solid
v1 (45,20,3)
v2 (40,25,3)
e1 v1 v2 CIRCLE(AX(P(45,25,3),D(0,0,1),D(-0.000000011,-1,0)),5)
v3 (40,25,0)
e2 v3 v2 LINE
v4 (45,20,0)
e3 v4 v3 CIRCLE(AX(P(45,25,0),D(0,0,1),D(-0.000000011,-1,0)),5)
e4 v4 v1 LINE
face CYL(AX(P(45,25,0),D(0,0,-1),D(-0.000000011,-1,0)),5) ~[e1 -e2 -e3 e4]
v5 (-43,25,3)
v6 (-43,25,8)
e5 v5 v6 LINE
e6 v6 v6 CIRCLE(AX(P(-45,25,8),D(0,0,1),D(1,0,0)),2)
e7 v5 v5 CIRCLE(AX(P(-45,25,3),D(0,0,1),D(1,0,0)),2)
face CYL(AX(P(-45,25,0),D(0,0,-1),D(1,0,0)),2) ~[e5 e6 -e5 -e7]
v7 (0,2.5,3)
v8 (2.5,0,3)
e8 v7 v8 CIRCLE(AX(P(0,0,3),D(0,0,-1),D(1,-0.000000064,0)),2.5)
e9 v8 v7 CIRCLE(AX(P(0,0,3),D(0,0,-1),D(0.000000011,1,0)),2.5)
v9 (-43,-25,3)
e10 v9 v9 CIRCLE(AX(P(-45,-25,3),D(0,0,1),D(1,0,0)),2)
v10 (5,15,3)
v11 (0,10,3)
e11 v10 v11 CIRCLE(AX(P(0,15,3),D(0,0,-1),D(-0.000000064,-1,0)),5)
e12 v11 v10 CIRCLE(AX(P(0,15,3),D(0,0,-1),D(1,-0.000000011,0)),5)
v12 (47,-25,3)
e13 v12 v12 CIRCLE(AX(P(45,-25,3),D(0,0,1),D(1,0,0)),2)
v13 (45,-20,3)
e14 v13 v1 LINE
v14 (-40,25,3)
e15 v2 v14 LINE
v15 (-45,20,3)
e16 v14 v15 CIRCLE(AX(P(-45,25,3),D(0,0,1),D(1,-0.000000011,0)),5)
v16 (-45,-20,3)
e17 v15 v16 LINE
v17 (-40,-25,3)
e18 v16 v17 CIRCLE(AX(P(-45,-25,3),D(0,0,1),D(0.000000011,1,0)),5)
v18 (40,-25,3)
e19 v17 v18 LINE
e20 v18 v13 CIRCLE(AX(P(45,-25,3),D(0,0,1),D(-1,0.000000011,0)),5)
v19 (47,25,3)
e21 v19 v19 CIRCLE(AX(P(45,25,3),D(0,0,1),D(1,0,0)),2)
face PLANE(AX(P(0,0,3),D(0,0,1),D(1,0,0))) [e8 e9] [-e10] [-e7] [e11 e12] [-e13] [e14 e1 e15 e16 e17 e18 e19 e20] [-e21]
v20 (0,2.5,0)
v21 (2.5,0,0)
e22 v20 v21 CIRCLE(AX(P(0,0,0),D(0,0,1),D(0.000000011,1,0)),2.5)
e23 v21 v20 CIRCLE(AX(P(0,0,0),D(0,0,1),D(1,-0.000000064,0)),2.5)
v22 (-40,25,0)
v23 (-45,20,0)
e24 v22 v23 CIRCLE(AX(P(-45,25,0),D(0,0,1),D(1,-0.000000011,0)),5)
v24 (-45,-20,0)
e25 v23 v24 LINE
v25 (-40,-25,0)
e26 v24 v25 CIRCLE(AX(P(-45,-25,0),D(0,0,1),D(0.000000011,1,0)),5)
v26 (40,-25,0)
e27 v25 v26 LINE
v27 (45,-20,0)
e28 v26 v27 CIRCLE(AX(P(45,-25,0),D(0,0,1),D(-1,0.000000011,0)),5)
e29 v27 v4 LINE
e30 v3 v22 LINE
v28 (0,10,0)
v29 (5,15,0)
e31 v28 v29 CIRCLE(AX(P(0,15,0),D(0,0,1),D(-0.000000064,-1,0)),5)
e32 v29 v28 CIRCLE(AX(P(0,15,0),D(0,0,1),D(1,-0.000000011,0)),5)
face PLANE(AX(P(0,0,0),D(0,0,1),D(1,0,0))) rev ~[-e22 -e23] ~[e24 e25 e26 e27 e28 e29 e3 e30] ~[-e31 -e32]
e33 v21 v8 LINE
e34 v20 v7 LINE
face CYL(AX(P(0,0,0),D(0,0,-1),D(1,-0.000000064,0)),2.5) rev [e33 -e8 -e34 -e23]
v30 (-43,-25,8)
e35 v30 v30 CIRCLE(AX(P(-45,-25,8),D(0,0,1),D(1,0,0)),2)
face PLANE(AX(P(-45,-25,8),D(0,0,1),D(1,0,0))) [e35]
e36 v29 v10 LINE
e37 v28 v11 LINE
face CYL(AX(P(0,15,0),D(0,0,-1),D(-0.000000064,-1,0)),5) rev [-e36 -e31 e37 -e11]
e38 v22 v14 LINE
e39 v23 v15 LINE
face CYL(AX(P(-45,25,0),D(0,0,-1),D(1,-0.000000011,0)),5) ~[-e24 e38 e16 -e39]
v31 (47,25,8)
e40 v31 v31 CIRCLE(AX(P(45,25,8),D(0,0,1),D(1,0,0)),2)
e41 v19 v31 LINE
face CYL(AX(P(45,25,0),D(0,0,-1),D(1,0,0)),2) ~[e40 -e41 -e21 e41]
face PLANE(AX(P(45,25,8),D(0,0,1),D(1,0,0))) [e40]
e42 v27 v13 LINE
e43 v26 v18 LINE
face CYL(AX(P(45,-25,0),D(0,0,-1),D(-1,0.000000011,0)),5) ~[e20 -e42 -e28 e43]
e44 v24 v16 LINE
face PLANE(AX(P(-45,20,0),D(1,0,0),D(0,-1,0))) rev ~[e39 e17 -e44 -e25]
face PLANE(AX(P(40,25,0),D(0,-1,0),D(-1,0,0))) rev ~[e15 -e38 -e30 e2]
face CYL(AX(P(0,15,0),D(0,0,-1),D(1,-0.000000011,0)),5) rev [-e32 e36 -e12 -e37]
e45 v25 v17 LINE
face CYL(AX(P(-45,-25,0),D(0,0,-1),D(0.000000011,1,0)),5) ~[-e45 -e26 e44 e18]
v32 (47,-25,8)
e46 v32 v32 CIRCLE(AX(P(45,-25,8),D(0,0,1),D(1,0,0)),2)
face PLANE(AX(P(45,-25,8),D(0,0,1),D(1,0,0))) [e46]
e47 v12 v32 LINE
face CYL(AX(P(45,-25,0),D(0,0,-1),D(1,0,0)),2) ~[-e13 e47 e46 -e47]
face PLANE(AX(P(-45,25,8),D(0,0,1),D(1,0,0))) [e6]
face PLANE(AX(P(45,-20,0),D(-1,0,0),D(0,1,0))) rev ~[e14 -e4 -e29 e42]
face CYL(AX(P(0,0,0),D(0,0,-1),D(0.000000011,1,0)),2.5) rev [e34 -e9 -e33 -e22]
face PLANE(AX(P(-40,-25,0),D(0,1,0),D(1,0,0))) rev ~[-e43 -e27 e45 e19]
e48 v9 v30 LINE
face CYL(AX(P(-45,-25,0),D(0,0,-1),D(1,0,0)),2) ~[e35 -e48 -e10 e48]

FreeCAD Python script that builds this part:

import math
import FreeCAD as App
import Part
import Sketcher

V = App.Vector

doc = App.newDocument("Part")
params = doc.addObject("Spreadsheet::Sheet", "Params")
for row, (alias, value) in enumerate([
    ("sketch1_diameter", "4 mm"),
    ("sketch1_radius", "5 mm"),
    ("sketch1_width", "80 mm"),
    ("sketch1_height", "40 mm"),
    ("pad1_length", "3 mm"),
    ("sketch2_diameter", "4 mm"),
    ("pad2_length", "8 mm"),
    ("sketch3_radius", "5 mm"),
    ("sketch3_radius2", "2.5 mm"),
    ("pocket1_length", "4 mm"),
], start=1):
    params.set(f"A{row}", alias)
    params.set(f"B{row}", "=" + value)
    params.setAlias(f"B{row}", alias)

body = doc.addObject("PartDesign::Body", "Body")

# Sketch on XY plane
sketch1 = doc.addObject("Sketcher::SketchObject", "Sketch")
body.addObject(sketch1)
sketch1.AttachmentSupport = (doc.XY_Plane, [""])
sketch1.MapMode = "FlatFace"
sketch1.addGeometry([
    Part.LineSegment(V(40, 25, 0), V(-40, 25, 0)),  # 0
    Part.ArcOfCircle(Part.Circle(V(-45, 25, 0), V(0, 0, 1), 5), math.radians(-0.000001), math.radians(270.000001)),  # 1
    Part.LineSegment(V(-45, 20, 0), V(-45, -20, 0)),  # 2
    Part.ArcOfCircle(Part.Circle(V(-45, -25, 0), V(0, 0, 1), 5), math.radians(89.999999), math.radians(360.000001)),  # 3
    Part.LineSegment(V(-40, -25, 0), V(40, -25, 0)),  # 4
    Part.ArcOfCircle(Part.Circle(V(45, -25, 0), V(0, 0, 1), 5), math.radians(179.999999), math.radians(450.000001)),  # 5
    Part.LineSegment(V(45, -20, 0), V(45, 20, 0)),  # 6
    Part.ArcOfCircle(Part.Circle(V(45, 25, 0), V(0, 0, 1), 5), math.radians(-90.000001), math.radians(180.000001)),  # 7
    Part.Circle(V(-45, -25, 0), V(0, 0, 1), 2),  # 8
    Part.Circle(V(45, -25, 0), V(0, 0, 1), 2),  # 9
    Part.Circle(V(-45, 25, 0), V(0, 0, 1), 2),  # 10
    Part.Circle(V(45, 25, 0), V(0, 0, 1), 2),  # 11
], False)
sketch1.addConstraint([
    Sketcher.Constraint("Coincident", 0, 2, 1, 1),
    Sketcher.Constraint("Coincident", 1, 2, 2, 1),
    Sketcher.Constraint("Coincident", 2, 2, 3, 1),
    Sketcher.Constraint("Coincident", 3, 2, 4, 1),
    Sketcher.Constraint("Coincident", 4, 2, 5, 1),
    Sketcher.Constraint("Coincident", 5, 2, 6, 1),
    Sketcher.Constraint("Coincident", 6, 2, 7, 1),
    Sketcher.Constraint("Coincident", 7, 2, 0, 1),
    Sketcher.Constraint("Horizontal", 0),
    Sketcher.Constraint("Vertical", 2),
    Sketcher.Constraint("Horizontal", 4),
    Sketcher.Constraint("Vertical", 6),
    Sketcher.Constraint("Coincident", 8, 3, 3, 3),
    Sketcher.Constraint("Coincident", 9, 3, 5, 3),
    Sketcher.Constraint("Coincident", 10, 3, 1, 3),
    Sketcher.Constraint("Coincident", 11, 3, 7, 3),
    Sketcher.Constraint("Equal", 1, 3),
    Sketcher.Constraint("Equal", 3, 5),
    Sketcher.Constraint("Equal", 5, 7),
    Sketcher.Constraint("Equal", 8, 9),
    Sketcher.Constraint("Equal", 9, 10),
    Sketcher.Constraint("Equal", 10, 11),
    Sketcher.Constraint("Symmetric", 1, 3, 5, 3, -1, 1),
    Sketcher.Constraint("Symmetric", 3, 3, 7, 3, -1, 1),
    Sketcher.Constraint("Symmetric", 3, 3, 5, 3, -2),
    Sketcher.Constraint("Horizontal", 11, 3, 0, 2),
    Sketcher.Constraint("Horizontal", 9, 3, 3, 2),
    Sketcher.Constraint("Vertical", 10, 3, 1, 2),
    Sketcher.Constraint("Vertical", 11, 3, 5, 2),
    Sketcher.Constraint("Diameter", 8, 4.0),
    Sketcher.Constraint("Radius", 1, 5.0),
    Sketcher.Constraint("DistanceX", 0, 2, 0, 1, 80.0),
    Sketcher.Constraint("DistanceY", 2, 2, 2, 1, 40.0),
])
sketch1.setExpression("Constraints[29]", "Params.sketch1_diameter")
sketch1.setExpression("Constraints[30]", "Params.sketch1_radius")
sketch1.setExpression("Constraints[31]", "Params.sketch1_width")
sketch1.setExpression("Constraints[32]", "Params.sketch1_height")
pad1 = doc.addObject("PartDesign::Pad", "Pad")
body.addObject(pad1)
pad1.Profile = sketch1
pad1.setExpression("Length", "Params.pad1_length")

# Sketch on XY plane
sketch2 = doc.addObject("Sketcher::SketchObject", "Sketch001")
body.addObject(sketch2)
sketch2.AttachmentSupport = (doc.XY_Plane, [""])
sketch2.MapMode = "FlatFace"
sketch2.addGeometry([
    Part.Circle(V(-45, -25, 0), V(0, 0, 1), 2),
    Part.Circle(V(45, -25, 0), V(0, 0, 1), 2),
    Part.Circle(V(45, 25, 0), V(0, 0, 1), 2),
    Part.Circle(V(-45, 25, 0), V(0, 0, 1), 2),
], False)
sketch2.addConstraint([
    Sketcher.Constraint("Equal", 0, 1),
    Sketcher.Constraint("Equal", 1, 2),
    Sketcher.Constraint("Equal", 2, 3),
    Sketcher.Constraint("Symmetric", 0, 3, 2, 3, -1, 1),
    Sketcher.Constraint("Symmetric", 1, 3, 3, 3, -1, 1),
    Sketcher.Constraint("Symmetric", 0, 3, 1, 3, -2),
    Sketcher.Constraint("Diameter", 0, 4.0),
    Sketcher.Constraint("DistanceX", 0, 3, -1, 1, 45.0),
    Sketcher.Constraint("DistanceY", 0, 3, -1, 1, 25.0),
])
sketch2.setExpression("Constraints[6]", "Params.sketch2_diameter")
pad2 = doc.addObject("PartDesign::Pad", "Pad001")
body.addObject(pad2)
pad2.Profile = sketch2
pad2.setExpression("Length", "Params.pad2_length")

# Sketch on XY plane
sketch3 = doc.addObject("Sketcher::SketchObject", "Sketch002")
body.addObject(sketch3)
sketch3.AttachmentSupport = (doc.XY_Plane, [""])
sketch3.MapMode = "FlatFace"
sketch3.addGeometry([
    Part.ArcOfCircle(Part.Circle(V(0, 0, 0), V(0, 0, 1), 2.5), math.radians(-0.000004), math.radians(90.000004)),
    Part.ArcOfCircle(Part.Circle(V(0, 0, 0), V(0, 0, 1), 2.5), math.radians(89.999999), math.radians(360.000001)),
    Part.ArcOfCircle(Part.Circle(V(0, 15, 0), V(0, 0, 1), 5), math.radians(-0.000001), math.radians(270.000001)),
    Part.ArcOfCircle(Part.Circle(V(0, 15, 0), V(0, 0, 1), 5), math.radians(-90.000004), math.radians(0.000004)),
], False)
sketch3.addConstraint([
    Sketcher.Constraint("Tangent", 0, 1, 1, 2),
    Sketcher.Constraint("Coincident", 1, 1, 0, 2),
    Sketcher.Constraint("Tangent", 2, 1, 3, 2),
    Sketcher.Constraint("Coincident", 3, 1, 2, 2),
    Sketcher.Constraint("Coincident", 0, 3, -1, 1),
    Sketcher.Constraint("PointOnObject", 2, 3, -2),
    Sketcher.Constraint("PointOnObject", 0, 1, -1),
    Sketcher.Constraint("PointOnObject", 1, 1, -2),
    Sketcher.Constraint("PointOnObject", 3, 1, -2),
    Sketcher.Constraint("Horizontal", 3, 3, 2, 1),
    Sketcher.Constraint("Radius", 2, 5.0),
    Sketcher.Constraint("Radius", 0, 2.5),
    Sketcher.Constraint("DistanceY", -1, 1, 2, 3, 15.0),
])
sketch3.setExpression("Constraints[10]", "Params.sketch3_radius")
sketch3.setExpression("Constraints[11]", "Params.sketch3_radius2")
pocket1 = doc.addObject("PartDesign::Pocket", "Pocket")
body.addObject(pocket1)
pocket1.Profile = sketch3
pocket1.setExpression("Length", "Params.pocket1_length")
pocket1.Reversed = True

doc.recompute()
